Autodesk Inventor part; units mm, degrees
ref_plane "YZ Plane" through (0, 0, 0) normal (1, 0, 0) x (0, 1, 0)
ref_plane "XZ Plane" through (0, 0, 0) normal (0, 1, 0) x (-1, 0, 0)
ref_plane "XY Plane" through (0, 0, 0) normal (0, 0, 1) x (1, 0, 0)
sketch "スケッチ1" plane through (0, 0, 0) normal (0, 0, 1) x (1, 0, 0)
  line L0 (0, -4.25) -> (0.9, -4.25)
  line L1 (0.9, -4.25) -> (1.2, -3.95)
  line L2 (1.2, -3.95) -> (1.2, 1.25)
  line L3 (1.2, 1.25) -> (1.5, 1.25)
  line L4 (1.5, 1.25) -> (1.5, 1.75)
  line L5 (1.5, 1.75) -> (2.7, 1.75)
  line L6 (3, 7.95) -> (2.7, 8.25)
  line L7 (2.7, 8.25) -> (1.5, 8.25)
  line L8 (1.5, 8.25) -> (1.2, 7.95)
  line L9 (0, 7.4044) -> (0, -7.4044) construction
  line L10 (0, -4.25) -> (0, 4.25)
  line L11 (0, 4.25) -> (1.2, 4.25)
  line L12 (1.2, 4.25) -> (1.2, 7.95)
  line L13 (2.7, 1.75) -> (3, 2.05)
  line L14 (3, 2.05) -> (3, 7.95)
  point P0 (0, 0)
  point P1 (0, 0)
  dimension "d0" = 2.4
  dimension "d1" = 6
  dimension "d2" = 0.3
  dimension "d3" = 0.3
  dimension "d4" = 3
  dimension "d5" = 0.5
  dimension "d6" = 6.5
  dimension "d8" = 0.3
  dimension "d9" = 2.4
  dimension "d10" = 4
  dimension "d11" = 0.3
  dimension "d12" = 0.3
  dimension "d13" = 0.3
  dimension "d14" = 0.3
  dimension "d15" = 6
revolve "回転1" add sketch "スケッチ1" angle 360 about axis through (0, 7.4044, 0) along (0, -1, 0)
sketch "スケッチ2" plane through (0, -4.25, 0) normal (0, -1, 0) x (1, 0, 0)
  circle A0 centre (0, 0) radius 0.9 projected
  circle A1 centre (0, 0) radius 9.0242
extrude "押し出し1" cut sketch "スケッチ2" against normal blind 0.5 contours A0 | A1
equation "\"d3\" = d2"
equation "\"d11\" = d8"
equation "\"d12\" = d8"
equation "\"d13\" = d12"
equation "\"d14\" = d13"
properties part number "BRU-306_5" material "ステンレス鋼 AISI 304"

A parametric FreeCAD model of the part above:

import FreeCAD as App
import Part
import Sketcher


def add_polygon(sketch, points):
    """Adds a closed chain of lines whose ends are joined by coincident constraints."""
    first, n = sketch.GeometryCount, len(points)
    for a, b in zip(points, points[1:] + points[:1]):
        sketch.addGeometry(Part.LineSegment(App.Vector(*a, 0), App.Vector(*b, 0)), False)
    for i in range(n):
        sketch.addConstraint(Sketcher.Constraint("Coincident", first + i, 2, first + (i + 1) % n, 1))

doc = App.newDocument("Part")
params = doc.addObject("Spreadsheet::Sheet", "Params")
for row, (alias, value) in enumerate([
    ("sketch1_width", "0.3 mm"),
    ("sketch1_height", "0.5 mm"),
    ("revolution_angle", "360 deg"),
    ("pocket1_length", "0.5 mm"),
], start=1):
    params.set(f"A{row}", alias)
    params.set(f"B{row}", "=" + value)
    params.setAlias(f"B{row}", alias)

body = doc.addObject("PartDesign::Body", "Body")

sketch1 = body.newObject("Sketcher::SketchObject", "Sketch")
sketch1.AttachmentSupport = (doc.getObject("XY_Plane"), [""])
sketch1.MapMode = "FlatFace"
add_polygon(sketch1, [(0, 4.25), (0, -4.25), (0.9, -4.25), (1.2, -3.95), (1.2, 1.25), (1.5, 1.25), (1.5, 1.75), (2.7, 1.75), (3, 2.05), (3, 7.95), (2.7, 8.25), (1.5, 8.25), (1.2, 7.95), (1.2, 4.25)])
sketch1.addConstraint([
    Sketcher.Constraint("Vertical", 0),
    Sketcher.Constraint("Horizontal", 1),
    Sketcher.Constraint("Vertical", 3),
    Sketcher.Constraint("Horizontal", 4),
    Sketcher.Constraint("Vertical", 5),
    Sketcher.Constraint("Horizontal", 6),
    Sketcher.Constraint("Vertical", 8),
    Sketcher.Constraint("Horizontal", 10),
    Sketcher.Constraint("Vertical", 12),
    Sketcher.Constraint("Horizontal", 13),
    Sketcher.Constraint("Symmetric", 0, 2, 13, 2, -1, 1),
    Sketcher.Constraint("Parallel", 2, 7),
    Sketcher.Constraint("Perpendicular", 7, 9),
    Sketcher.Constraint("Perpendicular", 9, 11),
    Sketcher.Constraint("Horizontal", 8, 2, 11, 2),
    Sketcher.Constraint("Vertical", 6, 2, 9, 2),
    Sketcher.Constraint("Vertical", 5, 2, 10, 2),
    Sketcher.Constraint("Vertical", 3, 2, 11, 2),
    Sketcher.Constraint("Equal", 10, 13),
    Sketcher.Constraint("Equal", 2, 7),
    Sketcher.Constraint("Equal", 7, 9),
    Sketcher.Constraint("DistanceX", 4, 1, 4, 2, 0.3),
    Sketcher.Constraint("DistanceY", 5, 1, 5, 2, 0.5),
    Sketcher.Constraint("DistanceX", -1, 1, 7, 2, 3.0),
    Sketcher.Constraint("DistanceY", 1, 2, 5, 2, 6.0),
    Sketcher.Constraint("DistanceY", 3, 2, 12, 2, 3.0),
    Sketcher.Constraint("DistanceY", 6, 2, 9, 2, 6.5),
])
sketch1.setExpression("Constraints[35]", "Params.sketch1_width")
sketch1.setExpression("Constraints[36]", "Params.sketch1_height")
revolution = body.newObject("PartDesign::Revolution", "Revolution")
revolution.Profile = sketch1
revolution.ReferenceAxis = (sketch1, ["V_Axis"])
revolution.setExpression("Angle", "Params.revolution_angle")

sketch2 = body.newObject("Sketcher::SketchObject", "Sketch001")
sketch2.AttachmentSupport = (doc.getObject("XZ_Plane"), [""])
sketch2.MapMode = "FlatFace"
sketch2.AttachmentOffset = App.Placement(App.Vector(0, 0, 4.25), App.Rotation())
sketch2.addGeometry(Part.Circle(App.Vector(0, 0, 0), App.Vector(0, 0, 1), 9.0242), False)
sketch2.addConstraint([
    Sketcher.Constraint("Coincident", 0, 3, -1, 1),
    Sketcher.Constraint("Diameter", 0, 18.0484),
])
pocket1 = body.newObject("PartDesign::Pocket", "Pocket")
pocket1.Profile = sketch2
pocket1.setExpression("Length", "Params.pocket1_length")

doc.recompute()
